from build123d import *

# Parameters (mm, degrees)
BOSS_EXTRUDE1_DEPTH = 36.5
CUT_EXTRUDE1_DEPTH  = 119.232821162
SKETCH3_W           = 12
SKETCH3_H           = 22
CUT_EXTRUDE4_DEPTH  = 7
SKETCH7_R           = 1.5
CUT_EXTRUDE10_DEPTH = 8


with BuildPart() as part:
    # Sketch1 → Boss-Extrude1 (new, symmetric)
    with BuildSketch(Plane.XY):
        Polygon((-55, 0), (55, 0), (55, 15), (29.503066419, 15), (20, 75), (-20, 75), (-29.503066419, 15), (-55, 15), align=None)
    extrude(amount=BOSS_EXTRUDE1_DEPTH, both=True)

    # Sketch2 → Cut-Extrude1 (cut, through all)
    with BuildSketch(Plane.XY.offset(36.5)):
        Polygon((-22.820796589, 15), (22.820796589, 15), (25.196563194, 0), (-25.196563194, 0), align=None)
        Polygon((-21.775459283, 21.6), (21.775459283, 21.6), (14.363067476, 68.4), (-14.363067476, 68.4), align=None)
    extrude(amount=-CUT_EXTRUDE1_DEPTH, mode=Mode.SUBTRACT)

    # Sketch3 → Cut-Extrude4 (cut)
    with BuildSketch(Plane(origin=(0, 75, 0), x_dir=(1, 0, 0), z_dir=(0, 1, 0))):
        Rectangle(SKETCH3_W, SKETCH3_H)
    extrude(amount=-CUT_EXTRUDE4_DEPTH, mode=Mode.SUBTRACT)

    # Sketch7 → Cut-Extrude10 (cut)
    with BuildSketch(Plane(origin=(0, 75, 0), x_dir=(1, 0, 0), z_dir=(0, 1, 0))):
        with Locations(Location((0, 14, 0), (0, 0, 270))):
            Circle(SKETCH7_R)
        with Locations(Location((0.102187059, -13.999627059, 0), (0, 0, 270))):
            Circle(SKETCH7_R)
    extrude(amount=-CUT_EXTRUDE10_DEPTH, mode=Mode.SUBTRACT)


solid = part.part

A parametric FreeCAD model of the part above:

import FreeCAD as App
import Part
import Sketcher
from FreeCAD import Vector
Q = App.Units.Quantity

doc = App.newDocument("Part")
body = doc.addObject("PartDesign::Body", "Body")

# Sketch on XY plane
sketch1 = body.newObject("Sketcher::SketchObject", "Sketch")
sketch1.AttachmentSupport = (doc.getObject("XY_Plane"), [""])
sketch1.MapMode = "FlatFace"
sketch1.addGeometry(Part.LineSegment(Vector(-55, 0, 0), Vector(55, 0, 0)), False)
sketch1.addGeometry(Part.LineSegment(Vector(55, 0, 0), Vector(55, 15, 0)), False)
sketch1.addGeometry(Part.LineSegment(Vector(55, 15, 0), Vector(29.503066, 15, 0)), False)
sketch1.addGeometry(Part.LineSegment(Vector(29.503066, 15, 0), Vector(20, 75, 0)), False)
sketch1.addGeometry(Part.LineSegment(Vector(20, 75, 0), Vector(-20, 75, 0)), False)
sketch1.addGeometry(Part.LineSegment(Vector(-20, 75, 0), Vector(-29.503066, 15, 0)), False)
sketch1.addGeometry(Part.LineSegment(Vector(-29.503066, 15, 0), Vector(-55, 15, 0)), False)
sketch1.addGeometry(Part.LineSegment(Vector(-55, 15, 0), Vector(-55, 0, 0)), False)
sketch1.addConstraint(Sketcher.Constraint("Coincident", 0, 2, 1, 1))
sketch1.addConstraint(Sketcher.Constraint("Coincident", 1, 2, 2, 1))
sketch1.addConstraint(Sketcher.Constraint("Coincident", 2, 2, 3, 1))
sketch1.addConstraint(Sketcher.Constraint("Coincident", 3, 2, 4, 1))
sketch1.addConstraint(Sketcher.Constraint("Coincident", 4, 2, 5, 1))
sketch1.addConstraint(Sketcher.Constraint("Coincident", 5, 2, 6, 1))
sketch1.addConstraint(Sketcher.Constraint("Coincident", 6, 2, 7, 1))
sketch1.addConstraint(Sketcher.Constraint("Coincident", 7, 2, 0, 1))
sketch1.addConstraint(Sketcher.Constraint("Horizontal", 0))
sketch1.addConstraint(Sketcher.Constraint("Vertical", 1))
sketch1.addConstraint(Sketcher.Constraint("Horizontal", 2))
sketch1.addConstraint(Sketcher.Constraint("Horizontal", 4))
sketch1.addConstraint(Sketcher.Constraint("Horizontal", 6))
sketch1.addConstraint(Sketcher.Constraint("Vertical", 7))
sketch1.addConstraint(Sketcher.Constraint("Symmetric", 0, 2, 7, 2, -1, 1))
sketch1.addConstraint(Sketcher.Constraint("Symmetric", 2, 2, 5, 2, -2))
sketch1.addConstraint(Sketcher.Constraint("Equal", 3, 5))
sketch1.addConstraint(Sketcher.Constraint("DistanceX", 0, 1, 0, 2, Q("110 mm")))
sketch1.addConstraint(Sketcher.Constraint("DistanceX", 4, 2, 4, 1, Q("40 mm")))
sketch1.addConstraint(Sketcher.Constraint("DistanceY", 1, 1, 1, 2, Q("15 mm")))
sketch1.addConstraint(Sketcher.Constraint("Angle", 3, Q("99 deg")))
sketch1.addConstraint(Sketcher.Constraint("DistanceY", -1, 1, 3, 2, Q("75 mm")))
pad1 = body.newObject("PartDesign::Pad", "Pad")
pad1.Profile = sketch1
pad1.Length = 73
pad1.Midplane = True

# Sketch on XY plane
sketch2 = body.newObject("Sketcher::SketchObject", "Sketch001")
sketch2.AttachmentSupport = (doc.getObject("XY_Plane"), [""])
sketch2.MapMode = "FlatFace"
sketch2.AttachmentOffset = App.Placement(Vector(0, 0, 36.5), App.Rotation())
sketch2.addGeometry(Part.LineSegment(Vector(23, 15, 0), Vector(-23, 15, 0)), False)
sketch2.addGeometry(Part.LineSegment(Vector(-23, 15, 0), Vector(-25, 0, 0)), False)
sketch2.addGeometry(Part.LineSegment(Vector(-25, 0, 0), Vector(25, 0, 0)), False)
sketch2.addGeometry(Part.LineSegment(Vector(25, 0, 0), Vector(23, 15, 0)), False)
sketch2.addGeometry(Part.LineSegment(Vector(-22, 22, 0), Vector(22, 22, 0)), False)
sketch2.addGeometry(Part.LineSegment(Vector(22, 22, 0), Vector(14, 68, 0)), False)
sketch2.addGeometry(Part.LineSegment(Vector(14, 68, 0), Vector(-14, 68, 0)), False)
sketch2.addGeometry(Part.LineSegment(Vector(-14, 68, 0), Vector(-22, 22, 0)), False)
sketch2.addConstraint(Sketcher.Constraint("Coincident", 0, 2, 1, 1))
sketch2.addConstraint(Sketcher.Constraint("Coincident", 1, 2, 2, 1))
sketch2.addConstraint(Sketcher.Constraint("Coincident", 2, 2, 3, 1))
sketch2.addConstraint(Sketcher.Constraint("Coincident", 3, 2, 0, 1))
sketch2.addConstraint(Sketcher.Constraint("Coincident", 4, 2, 5, 1))
sketch2.addConstraint(Sketcher.Constraint("Coincident", 5, 2, 6, 1))
sketch2.addConstraint(Sketcher.Constraint("Coincident", 6, 2, 7, 1))
sketch2.addConstraint(Sketcher.Constraint("Coincident", 7, 2, 4, 1))
sketch2.addConstraint(Sketcher.Constraint("Horizontal", 0))
sketch2.addConstraint(Sketcher.Constraint("Horizontal", 2))
sketch2.addConstraint(Sketcher.Constraint("Horizontal", 4))
sketch2.addConstraint(Sketcher.Constraint("Horizontal", 6))
sketch2.addConstraint(Sketcher.Constraint("Symmetric", 1, 2, 2, 2, -1, 1))
sketch2.addConstraint(Sketcher.Constraint("Parallel", 3, 5))
sketch2.addConstraint(Sketcher.Constraint("Parallel", 1, 7))
sketch2.addConstraint(Sketcher.Constraint("Equal", 1, 3))
sketch2.addConstraint(Sketcher.Constraint("Angle", 1, Q("-99 deg")))
sketch2.addConstraint(Sketcher.Constraint("DistanceY", -1, 1, 0, 2, Q("15 mm")))
sketch2.addConstraint(Sketcher.Constraint("DistanceY", -1, 1, 4, 2, Q("21.6 mm")))
sketch2.addConstraint(Sketcher.Constraint("DistanceY", -1, 1, 5, 2, Q("68.4 mm")))
sketch2.addConstraint(Sketcher.Constraint("DistanceX", 4, 1, 4, 2, Q("43.550919 mm")))
sketch2.addConstraint(Sketcher.Constraint("DistanceX", 0, 2, 0, 1, Q("45.641593 mm")))
sketch2.addConstraint(Sketcher.Constraint("DistanceX", -1, 1, 4, 2, Q("21.775459 mm")))
pocket1 = body.newObject("PartDesign::Pocket", "Pocket")
pocket1.Profile = sketch2
pocket1.Type = "ThroughAll"

# Sketch on XZ plane
sketch3 = body.newObject("Sketcher::SketchObject", "Sketch002")
sketch3.AttachmentSupport = (doc.getObject("XZ_Plane"), [""])
sketch3.MapMode = "FlatFace"
sketch3.AttachmentOffset = App.Placement(Vector(0, 0, -75), App.Rotation())
sketch3.addGeometry(Part.LineSegment(Vector(-6, -11, 0), Vector(-6, 11, 0)), False)
sketch3.addGeometry(Part.LineSegment(Vector(-6, 11, 0), Vector(6, 11, 0)), False)
sketch3.addGeometry(Part.LineSegment(Vector(6, 11, 0), Vector(6, -11, 0)), False)
sketch3.addGeometry(Part.LineSegment(Vector(6, -11, 0), Vector(-6, -11, 0)), False)
sketch3.addConstraint(Sketcher.Constraint("Coincident", 0, 2, 1, 1))
sketch3.addConstraint(Sketcher.Constraint("Coincident", 1, 2, 2, 1))
sketch3.addConstraint(Sketcher.Constraint("Coincident", 2, 2, 3, 1))
sketch3.addConstraint(Sketcher.Constraint("Coincident", 3, 2, 0, 1))
sketch3.addConstraint(Sketcher.Constraint("Vertical", 0))
sketch3.addConstraint(Sketcher.Constraint("Horizontal", 1))
sketch3.addConstraint(Sketcher.Constraint("Vertical", 2))
sketch3.addConstraint(Sketcher.Constraint("Horizontal", 3))
sketch3.addConstraint(Sketcher.Constraint("Symmetric", 0, 2, 2, 2, -1, 1))
sketch3.addConstraint(Sketcher.Constraint("DistanceX", 1, 1, 1, 2, Q("12 mm")))
sketch3.addConstraint(Sketcher.Constraint("DistanceY", 0, 1, 0, 2, Q("22 mm")))
pocket2 = body.newObject("PartDesign::Pocket", "Pocket001")
pocket2.Profile = sketch3
pocket2.Length = 7
pocket2.Reversed = True

# Sketch on XZ plane
sketch4 = body.newObject("Sketcher::SketchObject", "Sketch003")
sketch4.AttachmentSupport = (doc.getObject("XZ_Plane"), [""])
sketch4.MapMode = "FlatFace"
sketch4.AttachmentOffset = App.Placement(Vector(0, 0, -75), App.Rotation())
sketch4.addGeometry(Part.Circle(Vector(0, -14, 0), Vector(0, 0, 1), 1.5), False)
sketch4.addGeometry(Part.Circle(Vector(0.1, 14, 0), Vector(0, 0, 1), 1.5), False)
sketch4.addConstraint(Sketcher.Constraint("Equal", 0, 1))
sketch4.addConstraint(Sketcher.Constraint("PointOnObject", 0, 3, -2))
sketch4.addConstraint(Sketcher.Constraint("Diameter", 0, Q("3 mm")))
sketch4.addConstraint(Sketcher.Constraint("DistanceY", 0, 3, -1, 1, Q("14 mm")))
sketch4.addConstraint(Sketcher.Constraint("DistanceX", -1, 1, 1, 3, Q("0.102187 mm")))
sketch4.addConstraint(Sketcher.Constraint("DistanceY", -1, 1, 1, 3, Q("13.999627 mm")))
pocket3 = body.newObject("PartDesign::Pocket", "Pocket002")
pocket3.Profile = sketch4
pocket3.Length = 8
pocket3.Reversed = True

doc.recompute()
